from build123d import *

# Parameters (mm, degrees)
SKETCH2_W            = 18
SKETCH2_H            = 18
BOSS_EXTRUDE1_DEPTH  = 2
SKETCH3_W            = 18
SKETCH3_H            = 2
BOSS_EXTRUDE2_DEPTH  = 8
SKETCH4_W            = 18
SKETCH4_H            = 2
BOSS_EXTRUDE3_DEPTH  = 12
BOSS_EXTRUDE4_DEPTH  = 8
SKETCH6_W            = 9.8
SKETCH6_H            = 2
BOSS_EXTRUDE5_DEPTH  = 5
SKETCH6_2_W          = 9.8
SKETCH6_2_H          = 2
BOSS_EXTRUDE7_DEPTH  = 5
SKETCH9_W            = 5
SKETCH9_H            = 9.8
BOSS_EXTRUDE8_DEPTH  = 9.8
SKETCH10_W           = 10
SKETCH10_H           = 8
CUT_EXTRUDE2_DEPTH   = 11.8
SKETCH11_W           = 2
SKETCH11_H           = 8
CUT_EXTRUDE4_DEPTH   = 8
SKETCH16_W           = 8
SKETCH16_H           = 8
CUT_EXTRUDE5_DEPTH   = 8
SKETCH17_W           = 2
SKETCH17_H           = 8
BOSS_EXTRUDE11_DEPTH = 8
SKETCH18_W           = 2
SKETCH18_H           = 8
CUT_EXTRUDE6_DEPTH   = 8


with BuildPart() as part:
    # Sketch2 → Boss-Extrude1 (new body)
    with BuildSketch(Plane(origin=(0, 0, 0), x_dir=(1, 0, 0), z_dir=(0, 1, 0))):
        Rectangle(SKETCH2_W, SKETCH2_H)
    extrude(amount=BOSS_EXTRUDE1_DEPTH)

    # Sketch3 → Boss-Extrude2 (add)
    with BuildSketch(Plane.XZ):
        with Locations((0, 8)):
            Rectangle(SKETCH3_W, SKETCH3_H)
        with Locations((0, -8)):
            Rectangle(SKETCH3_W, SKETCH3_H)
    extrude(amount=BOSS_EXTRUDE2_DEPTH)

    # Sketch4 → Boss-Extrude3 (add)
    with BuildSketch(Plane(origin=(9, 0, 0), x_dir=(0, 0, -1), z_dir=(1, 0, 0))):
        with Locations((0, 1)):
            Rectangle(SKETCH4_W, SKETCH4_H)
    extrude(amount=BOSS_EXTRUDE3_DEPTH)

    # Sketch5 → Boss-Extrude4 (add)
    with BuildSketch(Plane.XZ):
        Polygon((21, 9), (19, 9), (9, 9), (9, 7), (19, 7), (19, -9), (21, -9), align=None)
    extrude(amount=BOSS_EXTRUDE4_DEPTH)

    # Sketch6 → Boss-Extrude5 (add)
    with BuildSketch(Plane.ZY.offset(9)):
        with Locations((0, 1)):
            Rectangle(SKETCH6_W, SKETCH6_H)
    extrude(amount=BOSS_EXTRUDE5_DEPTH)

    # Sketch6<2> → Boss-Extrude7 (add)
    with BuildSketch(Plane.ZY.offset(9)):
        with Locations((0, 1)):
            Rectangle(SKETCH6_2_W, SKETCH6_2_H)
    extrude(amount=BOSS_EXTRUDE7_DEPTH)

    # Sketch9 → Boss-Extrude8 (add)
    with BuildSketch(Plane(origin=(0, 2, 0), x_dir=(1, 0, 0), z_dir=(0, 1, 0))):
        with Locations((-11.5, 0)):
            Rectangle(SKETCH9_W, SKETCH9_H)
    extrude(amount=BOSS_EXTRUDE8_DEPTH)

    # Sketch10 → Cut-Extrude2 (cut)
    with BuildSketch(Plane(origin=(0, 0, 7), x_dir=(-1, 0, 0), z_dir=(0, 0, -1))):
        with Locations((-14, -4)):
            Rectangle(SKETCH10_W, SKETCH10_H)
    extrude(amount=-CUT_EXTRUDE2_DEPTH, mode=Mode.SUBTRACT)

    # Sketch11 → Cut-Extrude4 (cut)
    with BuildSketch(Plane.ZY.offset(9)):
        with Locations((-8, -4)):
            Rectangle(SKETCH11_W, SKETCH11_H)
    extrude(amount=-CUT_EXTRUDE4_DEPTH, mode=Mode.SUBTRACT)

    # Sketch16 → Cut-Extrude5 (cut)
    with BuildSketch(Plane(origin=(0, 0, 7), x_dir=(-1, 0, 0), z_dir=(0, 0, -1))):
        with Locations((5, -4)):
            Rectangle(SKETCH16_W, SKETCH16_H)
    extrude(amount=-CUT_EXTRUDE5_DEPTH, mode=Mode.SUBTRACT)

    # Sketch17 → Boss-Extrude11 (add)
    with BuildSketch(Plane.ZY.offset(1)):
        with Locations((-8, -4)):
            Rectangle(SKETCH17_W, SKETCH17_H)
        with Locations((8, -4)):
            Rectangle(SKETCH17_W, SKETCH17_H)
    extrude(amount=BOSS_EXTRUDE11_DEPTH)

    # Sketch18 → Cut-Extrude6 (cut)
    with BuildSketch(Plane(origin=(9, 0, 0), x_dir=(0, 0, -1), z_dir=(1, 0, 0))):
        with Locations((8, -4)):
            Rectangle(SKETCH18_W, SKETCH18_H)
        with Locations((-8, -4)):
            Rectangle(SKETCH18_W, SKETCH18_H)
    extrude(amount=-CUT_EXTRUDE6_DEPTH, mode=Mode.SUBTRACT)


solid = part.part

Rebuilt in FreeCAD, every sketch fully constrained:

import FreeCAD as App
import Part
import Sketcher
from FreeCAD import Vector
Q = App.Units.Quantity

doc = App.newDocument("Part")
body = doc.addObject("PartDesign::Body", "Body")

# Sketch on XZ plane
sketch1 = body.newObject("Sketcher::SketchObject", "Sketch")
sketch1.AttachmentSupport = (doc.getObject("XZ_Plane"), [""])
sketch1.MapMode = "FlatFace"
sketch1.addGeometry(Part.LineSegment(Vector(-9, -9, 0), Vector(-9, 9, 0)), False)
sketch1.addGeometry(Part.LineSegment(Vector(-9, 9, 0), Vector(9, 9, 0)), False)
sketch1.addGeometry(Part.LineSegment(Vector(9, 9, 0), Vector(9, -9, 0)), False)
sketch1.addGeometry(Part.LineSegment(Vector(9, -9, 0), Vector(-9, -9, 0)), False)
sketch1.addConstraint(Sketcher.Constraint("Coincident", 0, 2, 1, 1))
sketch1.addConstraint(Sketcher.Constraint("Coincident", 1, 2, 2, 1))
sketch1.addConstraint(Sketcher.Constraint("Coincident", 2, 2, 3, 1))
sketch1.addConstraint(Sketcher.Constraint("Coincident", 3, 2, 0, 1))
sketch1.addConstraint(Sketcher.Constraint("Vertical", 0))
sketch1.addConstraint(Sketcher.Constraint("Horizontal", 1))
sketch1.addConstraint(Sketcher.Constraint("Vertical", 2))
sketch1.addConstraint(Sketcher.Constraint("Horizontal", 3))
sketch1.addConstraint(Sketcher.Constraint("Symmetric", 0, 2, 2, 2, -1, 1))
sketch1.addConstraint(Sketcher.Constraint("Equal", 3, 0))
sketch1.addConstraint(Sketcher.Constraint("DistanceX", 1, 1, 1, 2, Q("18 mm")))
pad1 = body.newObject("PartDesign::Pad", "Pad")
pad1.Profile = sketch1
pad1.Length = 2
pad1.Reversed = True

# Sketch on XZ plane
sketch2 = body.newObject("Sketcher::SketchObject", "Sketch001")
sketch2.AttachmentSupport = (doc.getObject("XZ_Plane"), [""])
sketch2.MapMode = "FlatFace"
sketch2.addGeometry(Part.LineSegment(Vector(-9, 9, 0), Vector(-9, 7, 0)), False)
sketch2.addGeometry(Part.LineSegment(Vector(-9, 7, 0), Vector(9, 7, 0)), False)
sketch2.addGeometry(Part.LineSegment(Vector(9, 7, 0), Vector(9, 9, 0)), False)
sketch2.addGeometry(Part.LineSegment(Vector(9, 9, 0), Vector(-9, 9, 0)), False)
sketch2.addGeometry(Part.LineSegment(Vector(-9, -7, 0), Vector(-9, -9, 0)), False)
sketch2.addGeometry(Part.LineSegment(Vector(-9, -9, 0), Vector(9, -9, 0)), False)
sketch2.addGeometry(Part.LineSegment(Vector(9, -9, 0), Vector(9, -7, 0)), False)
sketch2.addGeometry(Part.LineSegment(Vector(9, -7, 0), Vector(-9, -7, 0)), False)
sketch2.addConstraint(Sketcher.Constraint("Coincident", 0, 2, 1, 1))
sketch2.addConstraint(Sketcher.Constraint("Coincident", 1, 2, 2, 1))
sketch2.addConstraint(Sketcher.Constraint("Coincident", 2, 2, 3, 1))
sketch2.addConstraint(Sketcher.Constraint("Coincident", 3, 2, 0, 1))
sketch2.addConstraint(Sketcher.Constraint("Coincident", 4, 2, 5, 1))
sketch2.addConstraint(Sketcher.Constraint("Coincident", 5, 2, 6, 1))
sketch2.addConstraint(Sketcher.Constraint("Coincident", 6, 2, 7, 1))
sketch2.addConstraint(Sketcher.Constraint("Coincident", 7, 2, 4, 1))
sketch2.addConstraint(Sketcher.Constraint("Vertical", 0))
sketch2.addConstraint(Sketcher.Constraint("Horizontal", 1))
sketch2.addConstraint(Sketcher.Constraint("Vertical", 2))
sketch2.addConstraint(Sketcher.Constraint("Horizontal", 3))
sketch2.addConstraint(Sketcher.Constraint("Vertical", 4))
sketch2.addConstraint(Sketcher.Constraint("Horizontal", 5))
sketch2.addConstraint(Sketcher.Constraint("Vertical", 6))
sketch2.addConstraint(Sketcher.Constraint("Horizontal", 7))
sketch2.addConstraint(Sketcher.Constraint("Symmetric", 2, 2, 4, 2, -1, 1))
sketch2.addConstraint(Sketcher.Constraint("Symmetric", 0, 2, 6, 2, -1, 1))
sketch2.addConstraint(Sketcher.Constraint("Vertical", 3, 2, 4, 2))
sketch2.addConstraint(Sketcher.Constraint("DistanceX", 1, 1, 1, 2, Q("18 mm")))
sketch2.addConstraint(Sketcher.Constraint("DistanceY", 0, 2, 0, 1, Q("2 mm")))
sketch2.addConstraint(Sketcher.Constraint("DistanceY", -1, 1, 0, 2, Q("7 mm")))
pad2 = body.newObject("PartDesign::Pad", "Pad001")
pad2.Profile = sketch2
pad2.Length = 8

# Sketch on YZ plane
sketch3 = body.newObject("Sketcher::SketchObject", "Sketch002")
sketch3.AttachmentSupport = (doc.getObject("YZ_Plane"), [""])
sketch3.MapMode = "FlatFace"
sketch3.AttachmentOffset = App.Placement(Vector(0, 0, 9), App.Rotation())
sketch3.addGeometry(Part.LineSegment(Vector(2, 9, 0), Vector(0, 9, 0)), False)
sketch3.addGeometry(Part.LineSegment(Vector(0, 9, 0), Vector(0, -9, 0)), False)
sketch3.addGeometry(Part.LineSegment(Vector(0, -9, 0), Vector(2, -9, 0)), False)
sketch3.addGeometry(Part.LineSegment(Vector(2, -9, 0), Vector(2, 9, 0)), False)
sketch3.addConstraint(Sketcher.Constraint("Coincident", 0, 2, 1, 1))
sketch3.addConstraint(Sketcher.Constraint("Coincident", 1, 2, 2, 1))
sketch3.addConstraint(Sketcher.Constraint("Coincident", 2, 2, 3, 1))
sketch3.addConstraint(Sketcher.Constraint("Coincident", 3, 2, 0, 1))
sketch3.addConstraint(Sketcher.Constraint("Horizontal", 0))
sketch3.addConstraint(Sketcher.Constraint("Vertical", 1))
sketch3.addConstraint(Sketcher.Constraint("Horizontal", 2))
sketch3.addConstraint(Sketcher.Constraint("Vertical", 3))
sketch3.addConstraint(Sketcher.Constraint("Symmetric", 0, 2, 1, 2, -1, 1))
sketch3.addConstraint(Sketcher.Constraint("DistanceX", 0, 2, 0, 1, Q("2 mm")))
sketch3.addConstraint(Sketcher.Constraint("DistanceY", 1, 2, 1, 1, Q("18 mm")))
pad3 = body.newObject("PartDesign::Pad", "Pad002")
pad3.Profile = sketch3
pad3.Length = 12

# Sketch on XZ plane
sketch4 = body.newObject("Sketcher::SketchObject", "Sketch003")
sketch4.AttachmentSupport = (doc.getObject("XZ_Plane"), [""])
sketch4.MapMode = "FlatFace"
sketch4.addGeometry(Part.LineSegment(Vector(21, 9, 0), Vector(9, 9, 0)), False)
sketch4.addGeometry(Part.LineSegment(Vector(9, 9, 0), Vector(9, 7, 0)), False)
sketch4.addGeometry(Part.LineSegment(Vector(9, 7, 0), Vector(19, 7, 0)), False)
sketch4.addGeometry(Part.LineSegment(Vector(19, 7, 0), Vector(19, -9, 0)), False)
sketch4.addGeometry(Part.LineSegment(Vector(19, -9, 0), Vector(21, -9, 0)), False)
sketch4.addGeometry(Part.LineSegment(Vector(21, -9, 0), Vector(21, 9, 0)), False)
sketch4.addConstraint(Sketcher.Constraint("Coincident", 0, 2, 1, 1))
sketch4.addConstraint(Sketcher.Constraint("Coincident", 1, 2, 2, 1))
sketch4.addConstraint(Sketcher.Constraint("Coincident", 2, 2, 3, 1))
sketch4.addConstraint(Sketcher.Constraint("Coincident", 3, 2, 4, 1))
sketch4.addConstraint(Sketcher.Constraint("Coincident", 4, 2, 5, 1))
sketch4.addConstraint(Sketcher.Constraint("Coincident", 5, 2, 0, 1))
sketch4.addConstraint(Sketcher.Constraint("Horizontal", 0))
sketch4.addConstraint(Sketcher.Constraint("Vertical", 1))
sketch4.addConstraint(Sketcher.Constraint("Horizontal", 2))
sketch4.addConstraint(Sketcher.Constraint("Vertical", 3))
sketch4.addConstraint(Sketcher.Constraint("Horizontal", 4))
sketch4.addConstraint(Sketcher.Constraint("Vertical", 5))
sketch4.addConstraint(Sketcher.Constraint("Equal", 4, 1))
sketch4.addConstraint(Sketcher.Constraint("DistanceX", 0, 2, 0, 1, Q("12 mm")))
sketch4.addConstraint(Sketcher.Constraint("DistanceX", 2, 1, 2, 2, Q("10 mm")))
sketch4.addConstraint(Sketcher.Constraint("DistanceY", 3, 2, 3, 1, Q("16 mm")))
sketch4.addConstraint(Sketcher.Constraint("DistanceX", -1, 1, 0, 2, Q("9 mm")))
sketch4.addConstraint(Sketcher.Constraint("DistanceY", -1, 1, 0, 2, Q("9 mm")))
pad4 = body.newObject("PartDesign::Pad", "Pad003")
pad4.Profile = sketch4
pad4.Length = 8

# Sketch on YZ plane
sketch5 = body.newObject("Sketcher::SketchObject", "Sketch004")
sketch5.AttachmentSupport = (doc.getObject("YZ_Plane"), [""])
sketch5.MapMode = "FlatFace"
sketch5.AttachmentOffset = App.Placement(Vector(0, 0, -9), App.Rotation())
sketch5.addGeometry(Part.LineSegment(Vector(2, -4.9, 0), Vector(0, -4.9, 0)), False)
sketch5.addGeometry(Part.LineSegment(Vector(0, -4.9, 0), Vector(0, 4.9, 0)), False)
sketch5.addGeometry(Part.LineSegment(Vector(0, 4.9, 0), Vector(2, 4.9, 0)), False)
sketch5.addGeometry(Part.LineSegment(Vector(2, 4.9, 0), Vector(2, -4.9, 0)), False)
sketch5.addConstraint(Sketcher.Constraint("Coincident", 0, 2, 1, 1))
sketch5.addConstraint(Sketcher.Constraint("Coincident", 1, 2, 2, 1))
sketch5.addConstraint(Sketcher.Constraint("Coincident", 2, 2, 3, 1))
sketch5.addConstraint(Sketcher.Constraint("Coincident", 3, 2, 0, 1))
sketch5.addConstraint(Sketcher.Constraint("Horizontal", 0))
sketch5.addConstraint(Sketcher.Constraint("Vertical", 1))
sketch5.addConstraint(Sketcher.Constraint("Horizontal", 2))
sketch5.addConstraint(Sketcher.Constraint("Vertical", 3))
sketch5.addConstraint(Sketcher.Constraint("Symmetric", 0, 2, 1, 2, -1, 1))
sketch5.addConstraint(Sketcher.Constraint("DistanceX", 0, 2, 0, 1, Q("2 mm")))
sketch5.addConstraint(Sketcher.Constraint("DistanceY", 1, 1, 1, 2, Q("9.8 mm")))
pad5 = body.newObject("PartDesign::Pad", "Pad004")
pad5.Profile = sketch5
pad5.Length = 5
pad5.Reversed = True

# Sketch on YZ plane
sketch6 = body.newObject("Sketcher::SketchObject", "Sketch005")
sketch6.AttachmentSupport = (doc.getObject("YZ_Plane"), [""])
sketch6.MapMode = "FlatFace"
sketch6.AttachmentOffset = App.Placement(Vector(0, 0, -9), App.Rotation())
sketch6.addGeometry(Part.LineSegment(Vector(2, -4.9, 0), Vector(0, -4.9, 0)), False)
sketch6.addGeometry(Part.LineSegment(Vector(0, -4.9, 0), Vector(0, 4.9, 0)), False)
sketch6.addGeometry(Part.LineSegment(Vector(0, 4.9, 0), Vector(2, 4.9, 0)), False)
sketch6.addGeometry(Part.LineSegment(Vector(2, 4.9, 0), Vector(2, -4.9, 0)), False)
sketch6.addConstraint(Sketcher.Constraint("Coincident", 0, 2, 1, 1))
sketch6.addConstraint(Sketcher.Constraint("Coincident", 1, 2, 2, 1))
sketch6.addConstraint(Sketcher.Constraint("Coincident", 2, 2, 3, 1))
sketch6.addConstraint(Sketcher.Constraint("Coincident", 3, 2, 0, 1))
sketch6.addConstraint(Sketcher.Constraint("Horizontal", 0))
sketch6.addConstraint(Sketcher.Constraint("Vertical", 1))
sketch6.addConstraint(Sketcher.Constraint("Horizontal", 2))
sketch6.addConstraint(Sketcher.Constraint("Vertical", 3))
sketch6.addConstraint(Sketcher.Constraint("Symmetric", 0, 2, 1, 2, -1, 1))
sketch6.addConstraint(Sketcher.Constraint("DistanceX", 0, 2, 0, 1, Q("2 mm")))
sketch6.addConstraint(Sketcher.Constraint("DistanceY", 1, 1, 1, 2, Q("9.8 mm")))
pad6 = body.newObject("PartDesign::Pad", "Pad005")
pad6.Profile = sketch6
pad6.Length = 5
pad6.Reversed = True

# Sketch on XZ plane
sketch7 = body.newObject("Sketcher::SketchObject", "Sketch006")
sketch7.AttachmentSupport = (doc.getObject("XZ_Plane"), [""])
sketch7.MapMode = "FlatFace"
sketch7.AttachmentOffset = App.Placement(Vector(0, 0, -2), App.Rotation())
sketch7.addGeometry(Part.LineSegment(Vector(-14, -5, 0), Vector(-14, 5, 0)), False)
sketch7.addGeometry(Part.LineSegment(Vector(-14, 5, 0), Vector(-9, 5, 0)), False)
sketch7.addGeometry(Part.LineSegment(Vector(-9, 5, 0), Vector(-9, -5, 0)), False)
sketch7.addGeometry(Part.LineSegment(Vector(-9, -5, 0), Vector(-14, -5, 0)), False)
sketch7.addConstraint(Sketcher.Constraint("Coincident", 0, 2, 1, 1))
sketch7.addConstraint(Sketcher.Constraint("Coincident", 1, 2, 2, 1))
sketch7.addConstraint(Sketcher.Constraint("Coincident", 2, 2, 3, 1))
sketch7.addConstraint(Sketcher.Constraint("Coincident", 3, 2, 0, 1))
sketch7.addConstraint(Sketcher.Constraint("Vertical", 0))
sketch7.addConstraint(Sketcher.Constraint("Horizontal", 1))
sketch7.addConstraint(Sketcher.Constraint("Vertical", 2))
sketch7.addConstraint(Sketcher.Constraint("Horizontal", 3))
sketch7.addConstraint(Sketcher.Constraint("DistanceX", 1, 1, 1, 2, Q("5 mm")))
sketch7.addConstraint(Sketcher.Constraint("DistanceY", 0, 1, 0, 2, Q("9.8 mm")))
sketch7.addConstraint(Sketcher.Constraint("DistanceX", 0, 2, -1, 1, Q("14 mm")))
sketch7.addConstraint(Sketcher.Constraint("DistanceY", -1, 1, 0, 2, Q("4.9 mm")))
pad7 = body.newObject("PartDesign::Pad", "Pad006")
pad7.Profile = sketch7
pad7.Length = 9.8
pad7.Reversed = True

# Sketch on XY plane
sketch8 = body.newObject("Sketcher::SketchObject", "Sketch007")
sketch8.AttachmentSupport = (doc.getObject("XY_Plane"), [""])
sketch8.MapMode = "FlatFace"
sketch8.AttachmentOffset = App.Placement(Vector(0, 0, 7), App.Rotation())
sketch8.addGeometry(Part.LineSegment(Vector(19, 0, 0), Vector(19, -8, 0)), False)
sketch8.addGeometry(Part.LineSegment(Vector(19, -8, 0), Vector(9, -8, 0)), False)
sketch8.addGeometry(Part.LineSegment(Vector(9, -8, 0), Vector(9, 0, 0)), False)
sketch8.addGeometry(Part.LineSegment(Vector(9, 0, 0), Vector(19, 0, 0)), False)
sketch8.addConstraint(Sketcher.Constraint("Coincident", 0, 2, 1, 1))
sketch8.addConstraint(Sketcher.Constraint("Coincident", 1, 2, 2, 1))
sketch8.addConstraint(Sketcher.Constraint("Coincident", 2, 2, 3, 1))
sketch8.addConstraint(Sketcher.Constraint("Coincident", 3, 2, 0, 1))
sketch8.addConstraint(Sketcher.Constraint("Vertical", 0))
sketch8.addConstraint(Sketcher.Constraint("Horizontal", 1))
sketch8.addConstraint(Sketcher.Constraint("Vertical", 2))
sketch8.addConstraint(Sketcher.Constraint("Horizontal", 3))
sketch8.addConstraint(Sketcher.Constraint("PointOnObject", 2, 2, -1))
sketch8.addConstraint(Sketcher.Constraint("DistanceX", 1, 2, 1, 1, Q("10 mm")))
sketch8.addConstraint(Sketcher.Constraint("DistanceY", 0, 2, 0, 1, Q("8 mm")))
sketch8.addConstraint(Sketcher.Constraint("DistanceX", -1, 1, 0, 2, Q("19 mm")))
pocket1 = body.newObject("PartDesign::Pocket", "Pocket")
pocket1.Profile = sketch8
pocket1.Length = 11.8
pocket1.Reversed = True

# Sketch on YZ plane
sketch9 = body.newObject("Sketcher::SketchObject", "Sketch008")
sketch9.AttachmentSupport = (doc.getObject("YZ_Plane"), [""])
sketch9.MapMode = "FlatFace"
sketch9.AttachmentOffset = App.Placement(Vector(0, 0, -9), App.Rotation())
sketch9.addGeometry(Part.LineSegment(Vector(0, -9, 0), Vector(-8, -9, 0)), False)
sketch9.addGeometry(Part.LineSegment(Vector(-8, -9, 0), Vector(-8, -7, 0)), False)
sketch9.addGeometry(Part.LineSegment(Vector(-8, -7, 0), Vector(0, -7, 0)), False)
sketch9.addGeometry(Part.LineSegment(Vector(0, -7, 0), Vector(0, -9, 0)), False)
sketch9.addConstraint(Sketcher.Constraint("Coincident", 0, 2, 1, 1))
sketch9.addConstraint(Sketcher.Constraint("Coincident", 1, 2, 2, 1))
sketch9.addConstraint(Sketcher.Constraint("Coincident", 2, 2, 3, 1))
sketch9.addConstraint(Sketcher.Constraint("Coincident", 3, 2, 0, 1))
sketch9.addConstraint(Sketcher.Constraint("Horizontal", 0))
sketch9.addConstraint(Sketcher.Constraint("Vertical", 1))
sketch9.addConstraint(Sketcher.Constraint("Horizontal", 2))
sketch9.addConstraint(Sketcher.Constraint("Vertical", 3))
sketch9.addConstraint(Sketcher.Constraint("PointOnObject", 2, 2, -2))
sketch9.addConstraint(Sketcher.Constraint("DistanceX", 0, 2, 0, 1, Q("8 mm")))
sketch9.addConstraint(Sketcher.Constraint("DistanceY", 1, 1, 1, 2, Q("2 mm")))
sketch9.addConstraint(Sketcher.Constraint("DistanceY", 0, 2, -1, 1, Q("9 mm")))
pocket2 = body.newObject("PartDesign::Pocket", "Pocket001")
pocket2.Profile = sketch9
pocket2.Length = 8
pocket2.Reversed = True

# Sketch on XY plane
sketch10 = body.newObject("Sketcher::SketchObject", "Sketch009")
sketch10.AttachmentSupport = (doc.getObject("XY_Plane"), [""])
sketch10.MapMode = "FlatFace"
sketch10.AttachmentOffset = App.Placement(Vector(0, 0, 7), App.Rotation())
sketch10.addGeometry(Part.LineSegment(Vector(-1, 0, 0), Vector(-1, -8, 0)), False)
sketch10.addGeometry(Part.LineSegment(Vector(-1, -8, 0), Vector(-9, -8, 0)), False)
sketch10.addGeometry(Part.LineSegment(Vector(-9, -8, 0), Vector(-9, 0, 0)), False)
sketch10.addGeometry(Part.LineSegment(Vector(-9, 0, 0), Vector(-1, 0, 0)), False)
sketch10.addConstraint(Sketcher.Constraint("Coincident", 0, 2, 1, 1))
sketch10.addConstraint(Sketcher.Constraint("Coincident", 1, 2, 2, 1))
sketch10.addConstraint(Sketcher.Constraint("Coincident", 2, 2, 3, 1))
sketch10.addConstraint(Sketcher.Constraint("Coincident", 3, 2, 0, 1))
sketch10.addConstraint(Sketcher.Constraint("Vertical", 0))
sketch10.addConstraint(Sketcher.Constraint("Horizontal", 1))
sketch10.addConstraint(Sketcher.Constraint("Vertical", 2))
sketch10.addConstraint(Sketcher.Constraint("Horizontal", 3))
sketch10.addConstraint(Sketcher.Constraint("PointOnObject", 2, 2, -1))
sketch10.addConstraint(Sketcher.Constraint("Equal", 3, 0))
sketch10.addConstraint(Sketcher.Constraint("DistanceX", 1, 2, 1, 1, Q("8 mm")))
sketch10.addConstraint(Sketcher.Constraint("DistanceX", 0, 2, -1, 1, Q("1 mm")))
pocket3 = body.newObject("PartDesign::Pocket", "Pocket002")
pocket3.Profile = sketch10
pocket3.Length = 8
pocket3.Reversed = True

# Sketch on YZ plane
sketch11 = body.newObject("Sketcher::SketchObject", "Sketch010")
sketch11.AttachmentSupport = (doc.getObject("YZ_Plane"), [""])
sketch11.MapMode = "FlatFace"
sketch11.AttachmentOffset = App.Placement(Vector(0, 0, -1), App.Rotation())
sketch11.addGeometry(Part.LineSegment(Vector(0, -9, 0), Vector(-8, -9, 0)), False)
sketch11.addGeometry(Part.LineSegment(Vector(-8, -9, 0), Vector(-8, -7, 0)), False)
sketch11.addGeometry(Part.LineSegment(Vector(-8, -7, 0), Vector(0, -7, 0)), False)
sketch11.addGeometry(Part.LineSegment(Vector(0, -7, 0), Vector(0, -9, 0)), False)
sketch11.addGeometry(Part.LineSegment(Vector(0, 7, 0), Vector(-8, 7, 0)), False)
sketch11.addGeometry(Part.LineSegment(Vector(-8, 7, 0), Vector(-8, 9, 0)), False)
sketch11.addGeometry(Part.LineSegment(Vector(-8, 9, 0), Vector(0, 9, 0)), False)
sketch11.addGeometry(Part.LineSegment(Vector(0, 9, 0), Vector(0, 7, 0)), False)
sketch11.addConstraint(Sketcher.Constraint("Coincident", 0, 2, 1, 1))
sketch11.addConstraint(Sketcher.Constraint("Coincident", 1, 2, 2, 1))
sketch11.addConstraint(Sketcher.Constraint("Coincident", 2, 2, 3, 1))
sketch11.addConstraint(Sketcher.Constraint("Coincident", 3, 2, 0, 1))
sketch11.addConstraint(Sketcher.Constraint("Coincident", 4, 2, 5, 1))
sketch11.addConstraint(Sketcher.Constraint("Coincident", 5, 2, 6, 1))
sketch11.addConstraint(Sketcher.Constraint("Coincident", 6, 2, 7, 1))
sketch11.addConstraint(Sketcher.Constraint("Coincident", 7, 2, 4, 1))
sketch11.addConstraint(Sketcher.Constraint("Horizontal", 0))
sketch11.addConstraint(Sketcher.Constraint("Vertical", 1))
sketch11.addConstraint(Sketcher.Constraint("Horizontal", 2))
sketch11.addConstraint(Sketcher.Constraint("Vertical", 3))
sketch11.addConstraint(Sketcher.Constraint("Horizontal", 4))
sketch11.addConstraint(Sketcher.Constraint("Vertical", 5))
sketch11.addConstraint(Sketcher.Constraint("Horizontal", 6))
sketch11.addConstraint(Sketcher.Constraint("Vertical", 7))
sketch11.addConstraint(Sketcher.Constraint("Symmetric", 3, 2, 6, 2, -1, 1))
sketch11.addConstraint(Sketcher.Constraint("Symmetric", 1, 2, 4, 2, -1))
sketch11.addConstraint(Sketcher.Constraint("PointOnObject", 2, 2, -2))
sketch11.addConstraint(Sketcher.Constraint("DistanceX", 0, 2, 0, 1, Q("8 mm")))
sketch11.addConstraint(Sketcher.Constraint("DistanceY", 1, 1, 1, 2, Q("2 mm")))
sketch11.addConstraint(Sketcher.Constraint("DistanceY", 0, 2, -1, 1, Q("9 mm")))
pad8 = body.newObject("PartDesign::Pad", "Pad007")
pad8.Profile = sketch11
pad8.Length = 8
pad8.Reversed = True

# Sketch on YZ plane
sketch12 = body.newObject("Sketcher::SketchObject", "Sketch011")
sketch12.AttachmentSupport = (doc.getObject("YZ_Plane"), [""])
sketch12.MapMode = "FlatFace"
sketch12.AttachmentOffset = App.Placement(Vector(0, 0, 9), App.Rotation())
sketch12.addGeometry(Part.LineSegment(Vector(0, -7, 0), Vector(-8, -7, 0)), False)
sketch12.addGeometry(Part.LineSegment(Vector(-8, -7, 0), Vector(-8, -9, 0)), False)
sketch12.addGeometry(Part.LineSegment(Vector(-8, -9, 0), Vector(0, -9, 0)), False)
sketch12.addGeometry(Part.LineSegment(Vector(0, -9, 0), Vector(0, -7, 0)), False)
sketch12.addGeometry(Part.LineSegment(Vector(0, 9, 0), Vector(-8, 9, 0)), False)
sketch12.addGeometry(Part.LineSegment(Vector(-8, 9, 0), Vector(-8, 7, 0)), False)
sketch12.addGeometry(Part.LineSegment(Vector(-8, 7, 0), Vector(0, 7, 0)), False)
sketch12.addGeometry(Part.LineSegment(Vector(0, 7, 0), Vector(0, 9, 0)), False)
sketch12.addConstraint(Sketcher.Constraint("Coincident", 0, 2, 1, 1))
sketch12.addConstraint(Sketcher.Constraint("Coincident", 1, 2, 2, 1))
sketch12.addConstraint(Sketcher.Constraint("Coincident", 2, 2, 3, 1))
sketch12.addConstraint(Sketcher.Constraint("Coincident", 3, 2, 0, 1))
sketch12.addConstraint(Sketcher.Constraint("Coincident", 4, 2, 5, 1))
sketch12.addConstraint(Sketcher.Constraint("Coincident", 5, 2, 6, 1))
sketch12.addConstraint(Sketcher.Constraint("Coincident", 6, 2, 7, 1))
sketch12.addConstraint(Sketcher.Constraint("Coincident", 7, 2, 4, 1))
sketch12.addConstraint(Sketcher.Constraint("Horizontal", 0))
sketch12.addConstraint(Sketcher.Constraint("Vertical", 1))
sketch12.addConstraint(Sketcher.Constraint("Horizontal", 2))
sketch12.addConstraint(Sketcher.Constraint("Vertical", 3))
sketch12.addConstraint(Sketcher.Constraint("Horizontal", 4))
sketch12.addConstraint(Sketcher.Constraint("Vertical", 5))
sketch12.addConstraint(Sketcher.Constraint("Horizontal", 6))
sketch12.addConstraint(Sketcher.Constraint("Vertical", 7))
sketch12.addConstraint(Sketcher.Constraint("Symmetric", 3, 2, 6, 2, -1, 1))
sketch12.addConstraint(Sketcher.Constraint("Symmetric", 1, 2, 4, 2, -1))
sketch12.addConstraint(Sketcher.Constraint("PointOnObject", 2, 2, -2))
sketch12.addConstraint(Sketcher.Constraint("DistanceX", 0, 2, 0, 1, Q("8 mm")))
sketch12.addConstraint(Sketcher.Constraint("DistanceY", 1, 2, 1, 1, Q("2 mm")))
sketch12.addConstraint(Sketcher.Constraint("DistanceY", 0, 2, -1, 1, Q("7 mm")))
pocket4 = body.newObject("PartDesign::Pocket", "Pocket003")
pocket4.Profile = sketch12
pocket4.Length = 8

doc.recompute()
